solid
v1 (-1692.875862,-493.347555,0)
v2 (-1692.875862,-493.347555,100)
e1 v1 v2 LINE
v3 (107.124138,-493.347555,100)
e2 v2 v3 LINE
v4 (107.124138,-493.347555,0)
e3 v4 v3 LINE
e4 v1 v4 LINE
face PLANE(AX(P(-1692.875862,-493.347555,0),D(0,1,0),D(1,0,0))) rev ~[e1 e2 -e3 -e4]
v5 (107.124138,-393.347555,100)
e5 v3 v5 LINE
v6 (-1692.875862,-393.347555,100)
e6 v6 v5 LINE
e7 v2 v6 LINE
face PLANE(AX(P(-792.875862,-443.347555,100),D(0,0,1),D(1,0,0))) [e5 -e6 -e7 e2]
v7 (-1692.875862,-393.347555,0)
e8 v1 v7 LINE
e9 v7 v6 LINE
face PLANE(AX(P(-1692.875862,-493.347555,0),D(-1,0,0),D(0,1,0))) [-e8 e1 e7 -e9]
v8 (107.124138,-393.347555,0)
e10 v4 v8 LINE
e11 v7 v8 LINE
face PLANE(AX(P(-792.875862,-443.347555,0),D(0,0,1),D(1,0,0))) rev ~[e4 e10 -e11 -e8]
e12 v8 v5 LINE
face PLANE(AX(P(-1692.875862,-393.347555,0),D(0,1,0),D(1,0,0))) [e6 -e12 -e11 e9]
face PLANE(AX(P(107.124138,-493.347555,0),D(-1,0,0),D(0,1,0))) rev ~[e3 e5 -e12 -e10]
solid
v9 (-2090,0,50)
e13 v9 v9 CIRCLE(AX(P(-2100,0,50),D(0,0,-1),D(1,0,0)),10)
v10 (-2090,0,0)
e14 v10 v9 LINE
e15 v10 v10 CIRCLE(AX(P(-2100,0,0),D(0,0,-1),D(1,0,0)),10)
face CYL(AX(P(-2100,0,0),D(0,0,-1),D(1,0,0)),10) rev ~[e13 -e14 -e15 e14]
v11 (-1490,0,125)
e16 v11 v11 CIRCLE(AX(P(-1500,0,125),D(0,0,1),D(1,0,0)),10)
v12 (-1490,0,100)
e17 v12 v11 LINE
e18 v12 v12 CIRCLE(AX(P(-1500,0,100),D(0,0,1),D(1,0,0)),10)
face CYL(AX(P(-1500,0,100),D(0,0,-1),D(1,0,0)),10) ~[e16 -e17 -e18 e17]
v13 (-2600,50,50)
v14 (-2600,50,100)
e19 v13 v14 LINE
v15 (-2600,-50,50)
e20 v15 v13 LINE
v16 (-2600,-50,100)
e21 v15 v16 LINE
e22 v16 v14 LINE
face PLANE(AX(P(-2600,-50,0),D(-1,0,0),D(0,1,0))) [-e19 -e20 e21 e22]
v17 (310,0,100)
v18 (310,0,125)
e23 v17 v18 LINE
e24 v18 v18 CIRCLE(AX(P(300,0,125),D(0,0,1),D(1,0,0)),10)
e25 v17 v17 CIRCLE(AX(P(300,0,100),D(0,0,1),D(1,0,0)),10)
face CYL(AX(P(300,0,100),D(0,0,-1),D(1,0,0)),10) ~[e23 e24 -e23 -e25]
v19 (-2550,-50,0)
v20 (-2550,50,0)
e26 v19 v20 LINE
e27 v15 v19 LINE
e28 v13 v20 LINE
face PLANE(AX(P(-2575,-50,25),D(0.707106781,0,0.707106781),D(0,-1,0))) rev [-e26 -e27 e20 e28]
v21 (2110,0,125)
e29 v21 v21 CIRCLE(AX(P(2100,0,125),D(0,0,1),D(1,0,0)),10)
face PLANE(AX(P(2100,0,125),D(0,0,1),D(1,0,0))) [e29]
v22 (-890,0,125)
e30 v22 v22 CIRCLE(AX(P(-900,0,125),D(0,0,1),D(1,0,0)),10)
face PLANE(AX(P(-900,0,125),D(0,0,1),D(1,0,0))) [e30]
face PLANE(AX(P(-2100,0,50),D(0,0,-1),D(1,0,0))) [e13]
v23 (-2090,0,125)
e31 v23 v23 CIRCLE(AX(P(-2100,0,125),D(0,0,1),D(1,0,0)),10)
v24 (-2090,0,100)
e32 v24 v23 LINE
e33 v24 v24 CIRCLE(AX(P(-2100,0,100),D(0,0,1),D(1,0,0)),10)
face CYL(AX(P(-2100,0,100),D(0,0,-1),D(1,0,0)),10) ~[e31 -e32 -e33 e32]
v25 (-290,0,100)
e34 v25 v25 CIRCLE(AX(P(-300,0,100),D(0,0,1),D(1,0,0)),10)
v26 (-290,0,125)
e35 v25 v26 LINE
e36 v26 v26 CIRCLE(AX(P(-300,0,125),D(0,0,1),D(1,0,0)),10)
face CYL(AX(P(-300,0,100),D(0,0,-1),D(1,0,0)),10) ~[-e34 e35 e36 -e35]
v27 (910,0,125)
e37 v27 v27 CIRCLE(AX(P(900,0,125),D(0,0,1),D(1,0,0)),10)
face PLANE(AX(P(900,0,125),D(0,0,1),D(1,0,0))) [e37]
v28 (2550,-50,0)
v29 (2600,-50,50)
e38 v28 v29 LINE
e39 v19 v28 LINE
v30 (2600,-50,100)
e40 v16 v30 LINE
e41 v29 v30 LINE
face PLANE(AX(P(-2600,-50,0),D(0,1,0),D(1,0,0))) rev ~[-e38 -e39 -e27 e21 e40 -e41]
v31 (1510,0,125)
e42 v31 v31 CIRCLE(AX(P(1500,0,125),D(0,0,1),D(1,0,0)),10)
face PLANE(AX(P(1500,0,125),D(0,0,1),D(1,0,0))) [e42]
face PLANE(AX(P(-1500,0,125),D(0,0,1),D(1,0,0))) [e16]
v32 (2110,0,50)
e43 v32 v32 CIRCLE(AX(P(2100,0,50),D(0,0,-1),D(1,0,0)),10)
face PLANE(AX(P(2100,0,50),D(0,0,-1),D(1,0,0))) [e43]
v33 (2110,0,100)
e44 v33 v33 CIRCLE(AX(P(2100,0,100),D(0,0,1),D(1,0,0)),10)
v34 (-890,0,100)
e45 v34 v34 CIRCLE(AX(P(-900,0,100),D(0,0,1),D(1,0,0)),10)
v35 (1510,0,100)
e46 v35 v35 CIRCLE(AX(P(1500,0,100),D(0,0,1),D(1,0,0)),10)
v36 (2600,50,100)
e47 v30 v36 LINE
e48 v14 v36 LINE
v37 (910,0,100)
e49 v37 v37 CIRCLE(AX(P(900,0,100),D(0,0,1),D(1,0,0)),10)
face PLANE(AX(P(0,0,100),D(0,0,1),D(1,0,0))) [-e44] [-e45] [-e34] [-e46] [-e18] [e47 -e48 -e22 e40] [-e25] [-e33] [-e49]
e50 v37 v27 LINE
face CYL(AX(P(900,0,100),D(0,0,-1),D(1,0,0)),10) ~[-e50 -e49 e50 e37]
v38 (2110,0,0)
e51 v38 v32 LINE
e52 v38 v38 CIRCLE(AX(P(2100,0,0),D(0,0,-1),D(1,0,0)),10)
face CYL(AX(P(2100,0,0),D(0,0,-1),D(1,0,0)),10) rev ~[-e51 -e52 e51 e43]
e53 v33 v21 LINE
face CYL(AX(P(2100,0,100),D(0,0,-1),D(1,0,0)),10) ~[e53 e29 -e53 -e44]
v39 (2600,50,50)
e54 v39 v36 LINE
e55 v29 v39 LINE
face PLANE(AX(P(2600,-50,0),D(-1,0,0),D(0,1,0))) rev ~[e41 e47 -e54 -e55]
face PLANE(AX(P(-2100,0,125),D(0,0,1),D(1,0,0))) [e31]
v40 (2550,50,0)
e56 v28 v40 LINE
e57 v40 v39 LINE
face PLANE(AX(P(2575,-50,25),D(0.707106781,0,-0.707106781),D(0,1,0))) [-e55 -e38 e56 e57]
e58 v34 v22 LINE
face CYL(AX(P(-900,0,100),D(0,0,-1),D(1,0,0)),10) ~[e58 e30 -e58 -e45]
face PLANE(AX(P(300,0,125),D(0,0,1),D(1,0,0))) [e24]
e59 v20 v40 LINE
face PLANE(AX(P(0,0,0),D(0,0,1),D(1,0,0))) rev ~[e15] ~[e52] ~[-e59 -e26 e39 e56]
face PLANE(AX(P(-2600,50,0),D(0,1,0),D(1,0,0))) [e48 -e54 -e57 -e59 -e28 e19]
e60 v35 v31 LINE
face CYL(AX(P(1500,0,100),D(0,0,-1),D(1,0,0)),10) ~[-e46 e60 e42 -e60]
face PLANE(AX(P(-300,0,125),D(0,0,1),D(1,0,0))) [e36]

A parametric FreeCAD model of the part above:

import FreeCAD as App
import Part
import Sketcher
from FreeCAD import Vector
Q = App.Units.Quantity


def edges_at(feature, points):
    """Names of the edges that pass closest to the given points."""
    edges = feature.Shape.Edges
    near = lambda p: min(range(len(edges)), key=lambda i: edges[i].distToShape(Part.Vertex(*p))[0])
    return sorted({f"Edge{near(p) + 1}" for p in points})

doc = App.newDocument("Part")
params = doc.addObject("Spreadsheet::Sheet", "Params")
for row, (alias, value) in enumerate([
    ("sketch1_width", "5200 mm"),
    ("sketch1_width2", "1800 mm"),
    ("sketch1_height", "100 mm"),
    ("pad1_length", "100 mm"),
    ("sketch2_diameter", "20 mm"),
    ("pocket1_length", "50 mm"),
    ("sketch3_diameter", "20 mm"),
    ("pad2_length", "25 mm"),
    ("chamfer_size", "50 mm"),
], start=1):
    params.set(f"A{row}", alias)
    params.set(f"B{row}", "=" + value)
    params.setAlias(f"B{row}", alias)

body = doc.addObject("PartDesign::Body", "Body")
body.AllowCompound = True

sketch1 = body.newObject("Sketcher::SketchObject", "Sketch")
sketch1.AttachmentSupport = (doc.getObject("XY_Plane"), [""])
sketch1.MapMode = "FlatFace"
sketch1.addGeometry(Part.LineSegment(Vector(-2600, 50, 0), Vector(-2600, -50, 0)), False)
sketch1.addGeometry(Part.LineSegment(Vector(-2600, -50, 0), Vector(2600, -50, 0)), False)
sketch1.addGeometry(Part.LineSegment(Vector(2600, -50, 0), Vector(2600, 50, 0)), False)
sketch1.addGeometry(Part.LineSegment(Vector(2600, 50, 0), Vector(-2600, 50, 0)), False)
sketch1.addGeometry(Part.LineSegment(Vector(-1692.875862, -393.347555, 0), Vector(-1692.875862, -493.347555, 0)), False)
sketch1.addGeometry(Part.LineSegment(Vector(-1692.875862, -493.347555, 0), Vector(107.124138, -493.347555, 0)), False)
sketch1.addGeometry(Part.LineSegment(Vector(107.124138, -493.347555, 0), Vector(107.124138, -393.347555, 0)), False)
sketch1.addGeometry(Part.LineSegment(Vector(107.124138, -393.347555, 0), Vector(-1692.875862, -393.347555, 0)), False)
sketch1.addConstraint(Sketcher.Constraint("Coincident", 0, 2, 1, 1))
sketch1.addConstraint(Sketcher.Constraint("Coincident", 1, 2, 2, 1))
sketch1.addConstraint(Sketcher.Constraint("Coincident", 2, 2, 3, 1))
sketch1.addConstraint(Sketcher.Constraint("Coincident", 3, 2, 0, 1))
sketch1.addConstraint(Sketcher.Constraint("Coincident", 4, 2, 5, 1))
sketch1.addConstraint(Sketcher.Constraint("Coincident", 5, 2, 6, 1))
sketch1.addConstraint(Sketcher.Constraint("Coincident", 6, 2, 7, 1))
sketch1.addConstraint(Sketcher.Constraint("Coincident", 7, 2, 4, 1))
sketch1.addConstraint(Sketcher.Constraint("Vertical", 0))
sketch1.addConstraint(Sketcher.Constraint("Horizontal", 1))
sketch1.addConstraint(Sketcher.Constraint("Vertical", 2))
sketch1.addConstraint(Sketcher.Constraint("Horizontal", 3))
sketch1.addConstraint(Sketcher.Constraint("Vertical", 4))
sketch1.addConstraint(Sketcher.Constraint("Horizontal", 5))
sketch1.addConstraint(Sketcher.Constraint("Vertical", 6))
sketch1.addConstraint(Sketcher.Constraint("Horizontal", 7))
sketch1.addConstraint(Sketcher.Constraint("Symmetric", 0, 2, 2, 2, -1, 1))
sketch1.addConstraint(Sketcher.Constraint("Equal", 2, 4))
sketch1.addConstraint(Sketcher.Constraint("DistanceX", 1, 1, 1, 2, Q("5200 mm")))
sketch1.addConstraint(Sketcher.Constraint("DistanceX", 5, 1, 5, 2, Q("1800 mm")))
sketch1.addConstraint(Sketcher.Constraint("DistanceY", 0, 2, 0, 1, Q("100 mm")))
sketch1.addConstraint(Sketcher.Constraint("DistanceX", 4, 2, -1, 1, Q("1692.875862 mm")))
sketch1.addConstraint(Sketcher.Constraint("DistanceY", 4, 2, -1, 1, Q("493.347555 mm")))
sketch1.setExpression("Constraints[18]", "Params.sketch1_width")
sketch1.setExpression("Constraints[19]", "Params.sketch1_width2")
sketch1.setExpression("Constraints[20]", "Params.sketch1_height")
pad1 = body.newObject("PartDesign::Pad", "Pad")
pad1.Profile = sketch1
pad1.setExpression("Length", "Params.pad1_length")

sketch2 = body.newObject("Sketcher::SketchObject", "Sketch001")
sketch2.AttachmentSupport = (doc.getObject("XY_Plane"), [""])
sketch2.MapMode = "FlatFace"
sketch2.addGeometry(Part.Circle(Vector(-2100, 0, 0), Vector(0, 0, 1), 10), False)
sketch2.addGeometry(Part.Circle(Vector(2100, 0, 0), Vector(0, 0, 1), 10), False)
sketch2.addConstraint(Sketcher.Constraint("Equal", 0, 1))
sketch2.addConstraint(Sketcher.Constraint("Symmetric", 0, 3, 1, 3, -1, 1))
sketch2.addConstraint(Sketcher.Constraint("PointOnObject", 0, 3, -1))
sketch2.addConstraint(Sketcher.Constraint("Diameter", 0, Q("20 mm")))
sketch2.addConstraint(Sketcher.Constraint("DistanceX", 0, 3, -1, 1, Q("2100 mm")))
sketch2.setExpression("Constraints[3]", "Params.sketch2_diameter")
pocket1 = body.newObject("PartDesign::Pocket", "Pocket")
pocket1.Profile = sketch2
pocket1.setExpression("Length", "Params.pocket1_length")
pocket1.Reversed = True

sketch3 = body.newObject("Sketcher::SketchObject", "Sketch002")
sketch3.AttachmentSupport = (doc.getObject("XY_Plane"), [""])
sketch3.MapMode = "FlatFace"
sketch3.AttachmentOffset = App.Placement(Vector(0, 0, 100), App.Rotation())
sketch3.addGeometry(Part.Circle(Vector(-2100, 0, 0), Vector(0, 0, 1), 10), False)
sketch3.addGeometry(Part.Circle(Vector(-1500, 0, 0), Vector(0, 0, 1), 10), False)
sketch3.addGeometry(Part.Circle(Vector(-900, 0, 0), Vector(0, 0, 1), 10), False)
sketch3.addGeometry(Part.Circle(Vector(-300, 0, 0), Vector(0, 0, 1), 10), False)
sketch3.addGeometry(Part.Circle(Vector(300, 0, 0), Vector(0, 0, 1), 10), False)
sketch3.addGeometry(Part.Circle(Vector(900, 0, 0), Vector(0, 0, 1), 10), False)
sketch3.addGeometry(Part.Circle(Vector(1500, 0, 0), Vector(0, 0, 1), 10), False)
sketch3.addGeometry(Part.Circle(Vector(2100, 0, 0), Vector(0, 0, 1), 10), False)
sketch3.addConstraint(Sketcher.Constraint("Equal", 0, 1))
sketch3.addConstraint(Sketcher.Constraint("Equal", 1, 2))
sketch3.addConstraint(Sketcher.Constraint("Equal", 2, 3))
sketch3.addConstraint(Sketcher.Constraint("Equal", 3, 4))
sketch3.addConstraint(Sketcher.Constraint("Equal", 4, 5))
sketch3.addConstraint(Sketcher.Constraint("Equal", 5, 6))
sketch3.addConstraint(Sketcher.Constraint("Equal", 6, 7))
sketch3.addConstraint(Sketcher.Constraint("Symmetric", 3, 3, 4, 3, -1, 1))
sketch3.addConstraint(Sketcher.Constraint("Symmetric", 2, 3, 5, 3, -1, 1))
sketch3.addConstraint(Sketcher.Constraint("Symmetric", 1, 3, 6, 3, -1, 1))
sketch3.addConstraint(Sketcher.Constraint("Symmetric", 0, 3, 7, 3, -1, 1))
sketch3.addConstraint(Sketcher.Constraint("PointOnObject", 0, 3, -1))
sketch3.addConstraint(Sketcher.Constraint("PointOnObject", 1, 3, -1))
sketch3.addConstraint(Sketcher.Constraint("PointOnObject", 2, 3, -1))
sketch3.addConstraint(Sketcher.Constraint("PointOnObject", 3, 3, -1))
sketch3.addConstraint(Sketcher.Constraint("Diameter", 0, Q("20 mm")))
sketch3.addConstraint(Sketcher.Constraint("DistanceX", 0, 3, -1, 1, Q("2100 mm")))
sketch3.addConstraint(Sketcher.Constraint("DistanceX", 1, 3, -1, 1, Q("1500 mm")))
sketch3.addConstraint(Sketcher.Constraint("DistanceX", 2, 3, -1, 1, Q("900 mm")))
sketch3.addConstraint(Sketcher.Constraint("DistanceX", 3, 3, -1, 1, Q("300 mm")))
sketch3.setExpression("Constraints[15]", "Params.sketch3_diameter")
pad2 = body.newObject("PartDesign::Pad", "Pad001")
pad2.Profile = sketch3
pad2.setExpression("Length", "Params.pad2_length")
doc.recompute()

chamfer = body.newObject("PartDesign::Chamfer", "Chamfer")
chamfer.Base = (pad2, edges_at(pad2, [(-2600, 0, 0), (2600, 0, 0)]))
chamfer.setExpression("Size", "Params.chamfer_size")

doc.recompute()
